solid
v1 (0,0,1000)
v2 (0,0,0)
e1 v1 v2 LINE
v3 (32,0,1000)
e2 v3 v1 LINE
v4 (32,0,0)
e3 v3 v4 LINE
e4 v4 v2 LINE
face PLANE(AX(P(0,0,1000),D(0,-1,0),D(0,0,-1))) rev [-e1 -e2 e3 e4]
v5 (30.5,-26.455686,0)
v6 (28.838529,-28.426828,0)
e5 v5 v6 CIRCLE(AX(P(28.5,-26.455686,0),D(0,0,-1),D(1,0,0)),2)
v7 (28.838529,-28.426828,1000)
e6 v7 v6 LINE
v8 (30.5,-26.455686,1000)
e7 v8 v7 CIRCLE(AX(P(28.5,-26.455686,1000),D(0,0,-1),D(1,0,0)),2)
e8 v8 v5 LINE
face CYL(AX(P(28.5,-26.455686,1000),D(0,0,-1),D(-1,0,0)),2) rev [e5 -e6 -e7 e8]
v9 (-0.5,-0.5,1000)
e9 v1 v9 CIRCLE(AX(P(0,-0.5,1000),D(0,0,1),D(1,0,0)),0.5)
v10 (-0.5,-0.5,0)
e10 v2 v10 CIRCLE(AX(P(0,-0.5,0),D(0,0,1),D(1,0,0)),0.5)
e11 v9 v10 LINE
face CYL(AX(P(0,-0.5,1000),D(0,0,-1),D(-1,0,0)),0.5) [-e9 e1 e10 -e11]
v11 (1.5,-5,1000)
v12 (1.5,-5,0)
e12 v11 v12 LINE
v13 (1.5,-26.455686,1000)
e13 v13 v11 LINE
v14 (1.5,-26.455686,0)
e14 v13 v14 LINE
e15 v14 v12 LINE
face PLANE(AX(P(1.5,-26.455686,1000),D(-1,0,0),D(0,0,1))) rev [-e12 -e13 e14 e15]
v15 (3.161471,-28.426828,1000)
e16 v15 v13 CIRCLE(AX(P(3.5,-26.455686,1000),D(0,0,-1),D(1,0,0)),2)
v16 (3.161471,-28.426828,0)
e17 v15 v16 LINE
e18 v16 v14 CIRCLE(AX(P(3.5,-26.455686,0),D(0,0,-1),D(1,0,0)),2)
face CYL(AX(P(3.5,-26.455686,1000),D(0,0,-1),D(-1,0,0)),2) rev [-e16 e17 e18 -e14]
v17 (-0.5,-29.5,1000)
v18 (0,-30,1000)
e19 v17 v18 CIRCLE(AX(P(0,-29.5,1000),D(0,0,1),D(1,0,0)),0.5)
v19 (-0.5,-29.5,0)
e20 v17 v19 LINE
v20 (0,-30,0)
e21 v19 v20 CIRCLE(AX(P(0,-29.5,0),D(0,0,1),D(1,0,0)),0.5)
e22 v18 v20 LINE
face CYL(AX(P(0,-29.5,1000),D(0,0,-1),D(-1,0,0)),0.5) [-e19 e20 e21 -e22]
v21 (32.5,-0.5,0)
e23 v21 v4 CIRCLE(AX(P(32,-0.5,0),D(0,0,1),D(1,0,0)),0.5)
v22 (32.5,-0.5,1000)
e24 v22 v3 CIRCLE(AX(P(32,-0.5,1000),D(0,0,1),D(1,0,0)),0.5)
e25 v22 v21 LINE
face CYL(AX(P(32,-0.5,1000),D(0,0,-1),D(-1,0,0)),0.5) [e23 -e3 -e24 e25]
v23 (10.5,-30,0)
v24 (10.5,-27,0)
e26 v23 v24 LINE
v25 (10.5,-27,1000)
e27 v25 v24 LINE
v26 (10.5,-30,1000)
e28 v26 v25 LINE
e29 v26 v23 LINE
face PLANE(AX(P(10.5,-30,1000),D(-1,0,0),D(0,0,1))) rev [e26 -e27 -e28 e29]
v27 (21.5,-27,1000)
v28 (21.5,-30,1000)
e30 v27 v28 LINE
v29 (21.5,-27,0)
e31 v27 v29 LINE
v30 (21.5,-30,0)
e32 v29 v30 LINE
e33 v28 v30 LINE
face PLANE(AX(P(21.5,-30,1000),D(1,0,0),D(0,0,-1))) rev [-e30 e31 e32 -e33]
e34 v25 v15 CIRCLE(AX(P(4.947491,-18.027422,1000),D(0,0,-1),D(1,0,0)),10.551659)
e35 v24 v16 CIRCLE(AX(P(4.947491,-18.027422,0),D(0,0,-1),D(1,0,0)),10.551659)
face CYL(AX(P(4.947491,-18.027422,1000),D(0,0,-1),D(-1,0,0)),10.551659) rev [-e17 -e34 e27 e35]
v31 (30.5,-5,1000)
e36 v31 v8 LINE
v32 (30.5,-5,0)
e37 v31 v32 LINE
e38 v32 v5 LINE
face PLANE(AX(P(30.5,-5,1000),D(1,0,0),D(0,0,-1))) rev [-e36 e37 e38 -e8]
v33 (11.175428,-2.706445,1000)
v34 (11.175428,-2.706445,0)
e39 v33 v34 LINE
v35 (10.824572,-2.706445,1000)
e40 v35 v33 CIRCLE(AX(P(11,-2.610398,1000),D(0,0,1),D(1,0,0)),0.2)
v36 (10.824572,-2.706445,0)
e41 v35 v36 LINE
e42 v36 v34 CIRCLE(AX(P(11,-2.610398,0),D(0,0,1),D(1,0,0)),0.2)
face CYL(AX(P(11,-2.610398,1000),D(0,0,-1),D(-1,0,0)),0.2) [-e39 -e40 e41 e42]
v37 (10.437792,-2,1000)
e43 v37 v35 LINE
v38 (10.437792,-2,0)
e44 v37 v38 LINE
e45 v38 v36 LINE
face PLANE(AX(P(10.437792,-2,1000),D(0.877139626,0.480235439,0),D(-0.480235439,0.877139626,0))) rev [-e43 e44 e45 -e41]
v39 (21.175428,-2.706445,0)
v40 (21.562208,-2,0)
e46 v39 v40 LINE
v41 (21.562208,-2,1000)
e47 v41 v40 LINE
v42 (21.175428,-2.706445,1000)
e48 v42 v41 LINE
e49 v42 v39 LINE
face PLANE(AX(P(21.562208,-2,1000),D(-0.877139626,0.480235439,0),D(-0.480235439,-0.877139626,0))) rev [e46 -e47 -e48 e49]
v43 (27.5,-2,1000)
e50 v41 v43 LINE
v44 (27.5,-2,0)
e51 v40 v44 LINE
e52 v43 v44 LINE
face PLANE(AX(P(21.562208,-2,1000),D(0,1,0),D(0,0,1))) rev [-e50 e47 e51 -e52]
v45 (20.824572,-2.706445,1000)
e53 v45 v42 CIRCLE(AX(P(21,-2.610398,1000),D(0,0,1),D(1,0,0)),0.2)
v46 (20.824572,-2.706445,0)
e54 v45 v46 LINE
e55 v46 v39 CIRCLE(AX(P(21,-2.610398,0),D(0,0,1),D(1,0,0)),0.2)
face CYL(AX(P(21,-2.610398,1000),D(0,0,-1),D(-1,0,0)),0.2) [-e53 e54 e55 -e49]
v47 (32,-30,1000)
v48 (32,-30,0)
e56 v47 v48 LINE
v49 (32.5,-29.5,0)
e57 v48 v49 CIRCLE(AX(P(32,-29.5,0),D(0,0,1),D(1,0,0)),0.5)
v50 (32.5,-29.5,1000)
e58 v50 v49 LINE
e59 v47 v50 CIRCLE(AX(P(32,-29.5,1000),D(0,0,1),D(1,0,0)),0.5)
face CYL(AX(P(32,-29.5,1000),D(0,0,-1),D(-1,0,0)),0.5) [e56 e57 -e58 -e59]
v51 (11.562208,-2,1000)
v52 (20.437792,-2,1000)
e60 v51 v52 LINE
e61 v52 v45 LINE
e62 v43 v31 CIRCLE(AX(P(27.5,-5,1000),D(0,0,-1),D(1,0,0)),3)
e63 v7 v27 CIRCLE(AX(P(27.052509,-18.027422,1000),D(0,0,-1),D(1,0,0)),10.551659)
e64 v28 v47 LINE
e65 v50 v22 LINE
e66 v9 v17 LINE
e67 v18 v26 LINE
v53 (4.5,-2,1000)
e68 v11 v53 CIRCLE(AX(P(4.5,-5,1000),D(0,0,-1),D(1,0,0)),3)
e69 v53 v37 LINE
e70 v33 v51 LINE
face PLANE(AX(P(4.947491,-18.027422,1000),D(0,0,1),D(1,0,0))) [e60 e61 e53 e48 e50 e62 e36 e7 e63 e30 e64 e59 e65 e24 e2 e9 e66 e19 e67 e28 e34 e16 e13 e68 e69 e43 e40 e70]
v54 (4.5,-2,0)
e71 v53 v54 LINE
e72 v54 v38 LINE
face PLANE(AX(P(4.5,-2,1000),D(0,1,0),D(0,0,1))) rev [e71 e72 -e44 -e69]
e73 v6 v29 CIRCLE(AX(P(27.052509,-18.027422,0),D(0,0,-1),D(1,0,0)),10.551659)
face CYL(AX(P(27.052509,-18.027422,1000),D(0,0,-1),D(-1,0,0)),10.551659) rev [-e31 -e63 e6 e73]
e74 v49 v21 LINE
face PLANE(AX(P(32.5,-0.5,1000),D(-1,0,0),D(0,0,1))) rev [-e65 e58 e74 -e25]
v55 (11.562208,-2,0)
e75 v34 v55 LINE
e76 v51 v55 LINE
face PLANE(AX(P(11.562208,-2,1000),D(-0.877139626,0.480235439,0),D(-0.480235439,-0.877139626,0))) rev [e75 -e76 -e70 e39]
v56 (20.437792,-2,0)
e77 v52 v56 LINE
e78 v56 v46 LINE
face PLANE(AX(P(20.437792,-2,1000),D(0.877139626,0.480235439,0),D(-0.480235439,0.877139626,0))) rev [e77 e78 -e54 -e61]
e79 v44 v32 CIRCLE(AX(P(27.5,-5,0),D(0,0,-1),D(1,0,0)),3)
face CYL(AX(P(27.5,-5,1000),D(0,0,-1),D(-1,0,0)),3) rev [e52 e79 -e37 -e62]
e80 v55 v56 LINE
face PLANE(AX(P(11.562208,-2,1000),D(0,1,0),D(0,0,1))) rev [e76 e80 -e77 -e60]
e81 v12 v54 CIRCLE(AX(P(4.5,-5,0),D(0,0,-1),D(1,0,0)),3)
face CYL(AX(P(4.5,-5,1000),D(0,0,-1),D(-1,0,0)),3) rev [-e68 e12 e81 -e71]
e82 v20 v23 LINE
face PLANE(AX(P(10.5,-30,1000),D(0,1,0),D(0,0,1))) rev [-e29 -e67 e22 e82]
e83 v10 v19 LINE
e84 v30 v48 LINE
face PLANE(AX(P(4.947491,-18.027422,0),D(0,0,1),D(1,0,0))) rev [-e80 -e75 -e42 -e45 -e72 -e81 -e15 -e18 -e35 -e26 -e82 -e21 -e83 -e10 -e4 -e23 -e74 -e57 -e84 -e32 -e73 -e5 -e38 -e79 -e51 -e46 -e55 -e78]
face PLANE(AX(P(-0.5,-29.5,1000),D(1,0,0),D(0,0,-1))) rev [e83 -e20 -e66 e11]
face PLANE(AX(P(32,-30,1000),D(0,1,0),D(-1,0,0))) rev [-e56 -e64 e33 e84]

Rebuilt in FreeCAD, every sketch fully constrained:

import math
import FreeCAD as App
import Part
import Sketcher
from FreeCAD import Vector
Q = App.Units.Quantity

doc = App.newDocument("Part")
body = doc.addObject("PartDesign::Body", "Body")

sketch1 = body.newObject("Sketcher::SketchObject", "Sketch")
sketch1.AttachmentSupport = (doc.getObject("XY_Plane"), [""])
sketch1.MapMode = "FlatFace"
sketch1.addGeometry([
    Part.LineSegment(Vector(0, -30, 0), Vector(10.5, -30, 0)),
    Part.LineSegment(Vector(10.5, -30, 0), Vector(10.5, -27, 0)),
    Part.ArcOfCircle(Part.Circle(Vector(4.95, -18.03, 0), Vector(0, 0, 1), 10.55), math.radians(-100), math.radians(-58)),
    Part.ArcOfCircle(Part.Circle(Vector(3.5, -26.46, 0), Vector(0, 0, 1), 2), math.radians(180), math.radians(260)),
    Part.LineSegment(Vector(1.5, -26.46, 0), Vector(1.5, -5, 0)),
    Part.ArcOfCircle(Part.Circle(Vector(4.5, -5, 0), Vector(0, 0, 1), 3), math.radians(90), math.radians(180)),
    Part.LineSegment(Vector(4.5, -2, 0), Vector(10.44, -2, 0)),
    Part.LineSegment(Vector(10.44, -2, 0), Vector(10.82, -2.71, 0)),
    Part.ArcOfCircle(Part.Circle(Vector(11, -2.61, 0), Vector(0, 0, 1), 0.2), math.radians(-151), math.radians(-29)),
    Part.LineSegment(Vector(11.18, -2.71, 0), Vector(11.56, -2, 0)),
    Part.LineSegment(Vector(11.56, -2, 0), Vector(20.44, -2, 0)),
    Part.LineSegment(Vector(20.44, -2, 0), Vector(20.82, -2.71, 0)),
    Part.ArcOfCircle(Part.Circle(Vector(21, -2.61, 0), Vector(0, 0, 1), 0.2), math.radians(-151), math.radians(-29)),
    Part.LineSegment(Vector(21.18, -2.71, 0), Vector(21.56, -2, 0)),
    Part.LineSegment(Vector(21.56, -2, 0), Vector(27.5, -2, 0)),
    Part.ArcOfCircle(Part.Circle(Vector(27.5, -5, 0), Vector(0, 0, 1), 3), math.radians(0), math.radians(90)),
    Part.LineSegment(Vector(30.5, -5, 0), Vector(30.5, -26.46, 0)),
    Part.ArcOfCircle(Part.Circle(Vector(28.5, -26.46, 0), Vector(0, 0, 1), 2), math.radians(-80), math.radians(0)),
    Part.ArcOfCircle(Part.Circle(Vector(27.05, -18.03, 0), Vector(0, 0, 1), 10.55), math.radians(-122), math.radians(-80)),
    Part.LineSegment(Vector(21.5, -27, 0), Vector(21.5, -30, 0)),
    Part.LineSegment(Vector(21.5, -30, 0), Vector(32, -30, 0)),
    Part.ArcOfCircle(Part.Circle(Vector(32, -29.5, 0), Vector(0, 0, 1), 0.5), math.radians(-90), math.radians(0)),
    Part.LineSegment(Vector(32.5, -29.5, 0), Vector(32.5, -0.5, 0)),
    Part.ArcOfCircle(Part.Circle(Vector(32, -0.5, 0), Vector(0, 0, 1), 0.5), math.radians(0), math.radians(90)),
    Part.LineSegment(Vector(32, 0, 0), Vector(0, 0, 0)),
    Part.ArcOfCircle(Part.Circle(Vector(0, -0.5, 0), Vector(0, 0, 1), 0.5), math.radians(90), math.radians(180)),
    Part.LineSegment(Vector(-0.5, -0.5, 0), Vector(-0.5, -29.5, 0)),
    Part.ArcOfCircle(Part.Circle(Vector(0, -29.5, 0), Vector(0, 0, 1), 0.5), math.radians(180), math.radians(270)),
], False)
sketch1.addConstraint([
    Sketcher.Constraint("Coincident", 0, 2, 1, 1),
    Sketcher.Constraint("Coincident", 1, 2, 2, 2),
    Sketcher.Constraint("Tangent", 2, 1, 3, 2),
    Sketcher.Constraint("Tangent", 3, 1, 4, 1),
    Sketcher.Constraint("Tangent", 4, 2, 5, 2),
    Sketcher.Constraint("Tangent", 5, 1, 6, 1),
    Sketcher.Constraint("Coincident", 6, 2, 7, 1),
    Sketcher.Constraint("Tangent", 7, 2, 8, 1),
    Sketcher.Constraint("Tangent", 8, 2, 9, 1),
    Sketcher.Constraint("Coincident", 9, 2, 10, 1),
    Sketcher.Constraint("Coincident", 10, 2, 11, 1),
    Sketcher.Constraint("Tangent", 11, 2, 12, 1),
    Sketcher.Constraint("Tangent", 12, 2, 13, 1),
    Sketcher.Constraint("Coincident", 13, 2, 14, 1),
    Sketcher.Constraint("Tangent", 14, 2, 15, 2),
    Sketcher.Constraint("Tangent", 15, 1, 16, 1),
    Sketcher.Constraint("Tangent", 16, 2, 17, 2),
    Sketcher.Constraint("Tangent", 17, 1, 18, 2),
    Sketcher.Constraint("Coincident", 18, 1, 19, 1),
    Sketcher.Constraint("Coincident", 19, 2, 20, 1),
    Sketcher.Constraint("Tangent", 20, 2, 21, 1),
    Sketcher.Constraint("Tangent", 21, 2, 22, 1),
    Sketcher.Constraint("Tangent", 22, 2, 23, 1),
    Sketcher.Constraint("Tangent", 23, 2, 24, 1),
    Sketcher.Constraint("Tangent", 24, 2, 25, 1),
    Sketcher.Constraint("Tangent", 25, 2, 26, 1),
    Sketcher.Constraint("Tangent", 26, 2, 27, 1),
    Sketcher.Constraint("Tangent", 27, 2, 0, 1),
    Sketcher.Constraint("Horizontal", 0),
    Sketcher.Constraint("Vertical", 1),
    Sketcher.Constraint("Vertical", 4),
    Sketcher.Constraint("Horizontal", 6),
    Sketcher.Constraint("Horizontal", 10),
    Sketcher.Constraint("Horizontal", 14),
    Sketcher.Constraint("Vertical", 16),
    Sketcher.Constraint("Vertical", 19),
    Sketcher.Constraint("Horizontal", 20),
    Sketcher.Constraint("Vertical", 22),
    Sketcher.Constraint("Horizontal", 24),
    Sketcher.Constraint("Vertical", 26),
    Sketcher.Constraint("Coincident", 24, 2, -1, 1),
    Sketcher.Constraint("Equal", 8, 12),
    Sketcher.Constraint("Equal", 5, 15),
    Sketcher.Constraint("Equal", 3, 17),
    Sketcher.Constraint("Equal", 2, 18),
    Sketcher.Constraint("Equal", 21, 23),
    Sketcher.Constraint("Equal", 23, 25),
    Sketcher.Constraint("Equal", 25, 27),
    Sketcher.Constraint("Parallel", 7, 11),
    Sketcher.Constraint("Parallel", 9, 13),
    Sketcher.Constraint("Horizontal", 8, 3, 12, 3),
    Sketcher.Constraint("Horizontal", 5, 3, 15, 3),
    Sketcher.Constraint("Horizontal", 3, 3, 17, 3),
    Sketcher.Constraint("Horizontal", 2, 3, 18, 3),
    Sketcher.Constraint("Horizontal", 21, 3, 27, 3),
    Sketcher.Constraint("Horizontal", 7, 2, 8, 2),
    Sketcher.Constraint("Horizontal", 6, 2, 9, 2),
    Sketcher.Constraint("Horizontal", 1, 2, 18, 1),
    Sketcher.Constraint("Equal", 6, 14),
    Sketcher.Constraint("Equal", 0, 20),
    Sketcher.Constraint("Radius", 3, Q("2 mm")),
    Sketcher.Constraint("Radius", 5, Q("3 mm")),
    Sketcher.Constraint("Radius", 8, Q("0.2 mm")),
    Sketcher.Constraint("Radius", 21, Q("0.5 mm")),
    Sketcher.Constraint("DistanceX", 24, 2, 24, 1, Q("32 mm")),
    Sketcher.Constraint("DistanceY", 1, 1, 1, 2, Q("3 mm")),
    Sketcher.Constraint("DistanceY", 22, 1, 22, 2, Q("29 mm")),
    Sketcher.Constraint("DistanceX", 0, 1, 0, 2, Q("10.5 mm")),
    Sketcher.Constraint("DistanceY", 5, 3, -1, 1, Q("5 mm")),
    Sketcher.Constraint("DistanceX", -1, 1, 8, 3, Q("11 mm")),
    Sketcher.Constraint("DistanceX", 5, 3, 15, 3, Q("23 mm")),
    Sketcher.Constraint("Radius", 2, Q("10.551659 mm")),
    Sketcher.Constraint("DistanceX", 6, 1, 6, 2, Q("5.937792 mm")),
    Sketcher.Constraint("DistanceY", 4, 1, 4, 2, Q("21.455686 mm")),
    Sketcher.Constraint("DistanceY", 3, 3, 8, 3, Q("23.845289 mm")),
])
pad1 = body.newObject("PartDesign::Pad", "Pad")
pad1.Profile = sketch1
pad1.Length = 1000

doc.recompute()
